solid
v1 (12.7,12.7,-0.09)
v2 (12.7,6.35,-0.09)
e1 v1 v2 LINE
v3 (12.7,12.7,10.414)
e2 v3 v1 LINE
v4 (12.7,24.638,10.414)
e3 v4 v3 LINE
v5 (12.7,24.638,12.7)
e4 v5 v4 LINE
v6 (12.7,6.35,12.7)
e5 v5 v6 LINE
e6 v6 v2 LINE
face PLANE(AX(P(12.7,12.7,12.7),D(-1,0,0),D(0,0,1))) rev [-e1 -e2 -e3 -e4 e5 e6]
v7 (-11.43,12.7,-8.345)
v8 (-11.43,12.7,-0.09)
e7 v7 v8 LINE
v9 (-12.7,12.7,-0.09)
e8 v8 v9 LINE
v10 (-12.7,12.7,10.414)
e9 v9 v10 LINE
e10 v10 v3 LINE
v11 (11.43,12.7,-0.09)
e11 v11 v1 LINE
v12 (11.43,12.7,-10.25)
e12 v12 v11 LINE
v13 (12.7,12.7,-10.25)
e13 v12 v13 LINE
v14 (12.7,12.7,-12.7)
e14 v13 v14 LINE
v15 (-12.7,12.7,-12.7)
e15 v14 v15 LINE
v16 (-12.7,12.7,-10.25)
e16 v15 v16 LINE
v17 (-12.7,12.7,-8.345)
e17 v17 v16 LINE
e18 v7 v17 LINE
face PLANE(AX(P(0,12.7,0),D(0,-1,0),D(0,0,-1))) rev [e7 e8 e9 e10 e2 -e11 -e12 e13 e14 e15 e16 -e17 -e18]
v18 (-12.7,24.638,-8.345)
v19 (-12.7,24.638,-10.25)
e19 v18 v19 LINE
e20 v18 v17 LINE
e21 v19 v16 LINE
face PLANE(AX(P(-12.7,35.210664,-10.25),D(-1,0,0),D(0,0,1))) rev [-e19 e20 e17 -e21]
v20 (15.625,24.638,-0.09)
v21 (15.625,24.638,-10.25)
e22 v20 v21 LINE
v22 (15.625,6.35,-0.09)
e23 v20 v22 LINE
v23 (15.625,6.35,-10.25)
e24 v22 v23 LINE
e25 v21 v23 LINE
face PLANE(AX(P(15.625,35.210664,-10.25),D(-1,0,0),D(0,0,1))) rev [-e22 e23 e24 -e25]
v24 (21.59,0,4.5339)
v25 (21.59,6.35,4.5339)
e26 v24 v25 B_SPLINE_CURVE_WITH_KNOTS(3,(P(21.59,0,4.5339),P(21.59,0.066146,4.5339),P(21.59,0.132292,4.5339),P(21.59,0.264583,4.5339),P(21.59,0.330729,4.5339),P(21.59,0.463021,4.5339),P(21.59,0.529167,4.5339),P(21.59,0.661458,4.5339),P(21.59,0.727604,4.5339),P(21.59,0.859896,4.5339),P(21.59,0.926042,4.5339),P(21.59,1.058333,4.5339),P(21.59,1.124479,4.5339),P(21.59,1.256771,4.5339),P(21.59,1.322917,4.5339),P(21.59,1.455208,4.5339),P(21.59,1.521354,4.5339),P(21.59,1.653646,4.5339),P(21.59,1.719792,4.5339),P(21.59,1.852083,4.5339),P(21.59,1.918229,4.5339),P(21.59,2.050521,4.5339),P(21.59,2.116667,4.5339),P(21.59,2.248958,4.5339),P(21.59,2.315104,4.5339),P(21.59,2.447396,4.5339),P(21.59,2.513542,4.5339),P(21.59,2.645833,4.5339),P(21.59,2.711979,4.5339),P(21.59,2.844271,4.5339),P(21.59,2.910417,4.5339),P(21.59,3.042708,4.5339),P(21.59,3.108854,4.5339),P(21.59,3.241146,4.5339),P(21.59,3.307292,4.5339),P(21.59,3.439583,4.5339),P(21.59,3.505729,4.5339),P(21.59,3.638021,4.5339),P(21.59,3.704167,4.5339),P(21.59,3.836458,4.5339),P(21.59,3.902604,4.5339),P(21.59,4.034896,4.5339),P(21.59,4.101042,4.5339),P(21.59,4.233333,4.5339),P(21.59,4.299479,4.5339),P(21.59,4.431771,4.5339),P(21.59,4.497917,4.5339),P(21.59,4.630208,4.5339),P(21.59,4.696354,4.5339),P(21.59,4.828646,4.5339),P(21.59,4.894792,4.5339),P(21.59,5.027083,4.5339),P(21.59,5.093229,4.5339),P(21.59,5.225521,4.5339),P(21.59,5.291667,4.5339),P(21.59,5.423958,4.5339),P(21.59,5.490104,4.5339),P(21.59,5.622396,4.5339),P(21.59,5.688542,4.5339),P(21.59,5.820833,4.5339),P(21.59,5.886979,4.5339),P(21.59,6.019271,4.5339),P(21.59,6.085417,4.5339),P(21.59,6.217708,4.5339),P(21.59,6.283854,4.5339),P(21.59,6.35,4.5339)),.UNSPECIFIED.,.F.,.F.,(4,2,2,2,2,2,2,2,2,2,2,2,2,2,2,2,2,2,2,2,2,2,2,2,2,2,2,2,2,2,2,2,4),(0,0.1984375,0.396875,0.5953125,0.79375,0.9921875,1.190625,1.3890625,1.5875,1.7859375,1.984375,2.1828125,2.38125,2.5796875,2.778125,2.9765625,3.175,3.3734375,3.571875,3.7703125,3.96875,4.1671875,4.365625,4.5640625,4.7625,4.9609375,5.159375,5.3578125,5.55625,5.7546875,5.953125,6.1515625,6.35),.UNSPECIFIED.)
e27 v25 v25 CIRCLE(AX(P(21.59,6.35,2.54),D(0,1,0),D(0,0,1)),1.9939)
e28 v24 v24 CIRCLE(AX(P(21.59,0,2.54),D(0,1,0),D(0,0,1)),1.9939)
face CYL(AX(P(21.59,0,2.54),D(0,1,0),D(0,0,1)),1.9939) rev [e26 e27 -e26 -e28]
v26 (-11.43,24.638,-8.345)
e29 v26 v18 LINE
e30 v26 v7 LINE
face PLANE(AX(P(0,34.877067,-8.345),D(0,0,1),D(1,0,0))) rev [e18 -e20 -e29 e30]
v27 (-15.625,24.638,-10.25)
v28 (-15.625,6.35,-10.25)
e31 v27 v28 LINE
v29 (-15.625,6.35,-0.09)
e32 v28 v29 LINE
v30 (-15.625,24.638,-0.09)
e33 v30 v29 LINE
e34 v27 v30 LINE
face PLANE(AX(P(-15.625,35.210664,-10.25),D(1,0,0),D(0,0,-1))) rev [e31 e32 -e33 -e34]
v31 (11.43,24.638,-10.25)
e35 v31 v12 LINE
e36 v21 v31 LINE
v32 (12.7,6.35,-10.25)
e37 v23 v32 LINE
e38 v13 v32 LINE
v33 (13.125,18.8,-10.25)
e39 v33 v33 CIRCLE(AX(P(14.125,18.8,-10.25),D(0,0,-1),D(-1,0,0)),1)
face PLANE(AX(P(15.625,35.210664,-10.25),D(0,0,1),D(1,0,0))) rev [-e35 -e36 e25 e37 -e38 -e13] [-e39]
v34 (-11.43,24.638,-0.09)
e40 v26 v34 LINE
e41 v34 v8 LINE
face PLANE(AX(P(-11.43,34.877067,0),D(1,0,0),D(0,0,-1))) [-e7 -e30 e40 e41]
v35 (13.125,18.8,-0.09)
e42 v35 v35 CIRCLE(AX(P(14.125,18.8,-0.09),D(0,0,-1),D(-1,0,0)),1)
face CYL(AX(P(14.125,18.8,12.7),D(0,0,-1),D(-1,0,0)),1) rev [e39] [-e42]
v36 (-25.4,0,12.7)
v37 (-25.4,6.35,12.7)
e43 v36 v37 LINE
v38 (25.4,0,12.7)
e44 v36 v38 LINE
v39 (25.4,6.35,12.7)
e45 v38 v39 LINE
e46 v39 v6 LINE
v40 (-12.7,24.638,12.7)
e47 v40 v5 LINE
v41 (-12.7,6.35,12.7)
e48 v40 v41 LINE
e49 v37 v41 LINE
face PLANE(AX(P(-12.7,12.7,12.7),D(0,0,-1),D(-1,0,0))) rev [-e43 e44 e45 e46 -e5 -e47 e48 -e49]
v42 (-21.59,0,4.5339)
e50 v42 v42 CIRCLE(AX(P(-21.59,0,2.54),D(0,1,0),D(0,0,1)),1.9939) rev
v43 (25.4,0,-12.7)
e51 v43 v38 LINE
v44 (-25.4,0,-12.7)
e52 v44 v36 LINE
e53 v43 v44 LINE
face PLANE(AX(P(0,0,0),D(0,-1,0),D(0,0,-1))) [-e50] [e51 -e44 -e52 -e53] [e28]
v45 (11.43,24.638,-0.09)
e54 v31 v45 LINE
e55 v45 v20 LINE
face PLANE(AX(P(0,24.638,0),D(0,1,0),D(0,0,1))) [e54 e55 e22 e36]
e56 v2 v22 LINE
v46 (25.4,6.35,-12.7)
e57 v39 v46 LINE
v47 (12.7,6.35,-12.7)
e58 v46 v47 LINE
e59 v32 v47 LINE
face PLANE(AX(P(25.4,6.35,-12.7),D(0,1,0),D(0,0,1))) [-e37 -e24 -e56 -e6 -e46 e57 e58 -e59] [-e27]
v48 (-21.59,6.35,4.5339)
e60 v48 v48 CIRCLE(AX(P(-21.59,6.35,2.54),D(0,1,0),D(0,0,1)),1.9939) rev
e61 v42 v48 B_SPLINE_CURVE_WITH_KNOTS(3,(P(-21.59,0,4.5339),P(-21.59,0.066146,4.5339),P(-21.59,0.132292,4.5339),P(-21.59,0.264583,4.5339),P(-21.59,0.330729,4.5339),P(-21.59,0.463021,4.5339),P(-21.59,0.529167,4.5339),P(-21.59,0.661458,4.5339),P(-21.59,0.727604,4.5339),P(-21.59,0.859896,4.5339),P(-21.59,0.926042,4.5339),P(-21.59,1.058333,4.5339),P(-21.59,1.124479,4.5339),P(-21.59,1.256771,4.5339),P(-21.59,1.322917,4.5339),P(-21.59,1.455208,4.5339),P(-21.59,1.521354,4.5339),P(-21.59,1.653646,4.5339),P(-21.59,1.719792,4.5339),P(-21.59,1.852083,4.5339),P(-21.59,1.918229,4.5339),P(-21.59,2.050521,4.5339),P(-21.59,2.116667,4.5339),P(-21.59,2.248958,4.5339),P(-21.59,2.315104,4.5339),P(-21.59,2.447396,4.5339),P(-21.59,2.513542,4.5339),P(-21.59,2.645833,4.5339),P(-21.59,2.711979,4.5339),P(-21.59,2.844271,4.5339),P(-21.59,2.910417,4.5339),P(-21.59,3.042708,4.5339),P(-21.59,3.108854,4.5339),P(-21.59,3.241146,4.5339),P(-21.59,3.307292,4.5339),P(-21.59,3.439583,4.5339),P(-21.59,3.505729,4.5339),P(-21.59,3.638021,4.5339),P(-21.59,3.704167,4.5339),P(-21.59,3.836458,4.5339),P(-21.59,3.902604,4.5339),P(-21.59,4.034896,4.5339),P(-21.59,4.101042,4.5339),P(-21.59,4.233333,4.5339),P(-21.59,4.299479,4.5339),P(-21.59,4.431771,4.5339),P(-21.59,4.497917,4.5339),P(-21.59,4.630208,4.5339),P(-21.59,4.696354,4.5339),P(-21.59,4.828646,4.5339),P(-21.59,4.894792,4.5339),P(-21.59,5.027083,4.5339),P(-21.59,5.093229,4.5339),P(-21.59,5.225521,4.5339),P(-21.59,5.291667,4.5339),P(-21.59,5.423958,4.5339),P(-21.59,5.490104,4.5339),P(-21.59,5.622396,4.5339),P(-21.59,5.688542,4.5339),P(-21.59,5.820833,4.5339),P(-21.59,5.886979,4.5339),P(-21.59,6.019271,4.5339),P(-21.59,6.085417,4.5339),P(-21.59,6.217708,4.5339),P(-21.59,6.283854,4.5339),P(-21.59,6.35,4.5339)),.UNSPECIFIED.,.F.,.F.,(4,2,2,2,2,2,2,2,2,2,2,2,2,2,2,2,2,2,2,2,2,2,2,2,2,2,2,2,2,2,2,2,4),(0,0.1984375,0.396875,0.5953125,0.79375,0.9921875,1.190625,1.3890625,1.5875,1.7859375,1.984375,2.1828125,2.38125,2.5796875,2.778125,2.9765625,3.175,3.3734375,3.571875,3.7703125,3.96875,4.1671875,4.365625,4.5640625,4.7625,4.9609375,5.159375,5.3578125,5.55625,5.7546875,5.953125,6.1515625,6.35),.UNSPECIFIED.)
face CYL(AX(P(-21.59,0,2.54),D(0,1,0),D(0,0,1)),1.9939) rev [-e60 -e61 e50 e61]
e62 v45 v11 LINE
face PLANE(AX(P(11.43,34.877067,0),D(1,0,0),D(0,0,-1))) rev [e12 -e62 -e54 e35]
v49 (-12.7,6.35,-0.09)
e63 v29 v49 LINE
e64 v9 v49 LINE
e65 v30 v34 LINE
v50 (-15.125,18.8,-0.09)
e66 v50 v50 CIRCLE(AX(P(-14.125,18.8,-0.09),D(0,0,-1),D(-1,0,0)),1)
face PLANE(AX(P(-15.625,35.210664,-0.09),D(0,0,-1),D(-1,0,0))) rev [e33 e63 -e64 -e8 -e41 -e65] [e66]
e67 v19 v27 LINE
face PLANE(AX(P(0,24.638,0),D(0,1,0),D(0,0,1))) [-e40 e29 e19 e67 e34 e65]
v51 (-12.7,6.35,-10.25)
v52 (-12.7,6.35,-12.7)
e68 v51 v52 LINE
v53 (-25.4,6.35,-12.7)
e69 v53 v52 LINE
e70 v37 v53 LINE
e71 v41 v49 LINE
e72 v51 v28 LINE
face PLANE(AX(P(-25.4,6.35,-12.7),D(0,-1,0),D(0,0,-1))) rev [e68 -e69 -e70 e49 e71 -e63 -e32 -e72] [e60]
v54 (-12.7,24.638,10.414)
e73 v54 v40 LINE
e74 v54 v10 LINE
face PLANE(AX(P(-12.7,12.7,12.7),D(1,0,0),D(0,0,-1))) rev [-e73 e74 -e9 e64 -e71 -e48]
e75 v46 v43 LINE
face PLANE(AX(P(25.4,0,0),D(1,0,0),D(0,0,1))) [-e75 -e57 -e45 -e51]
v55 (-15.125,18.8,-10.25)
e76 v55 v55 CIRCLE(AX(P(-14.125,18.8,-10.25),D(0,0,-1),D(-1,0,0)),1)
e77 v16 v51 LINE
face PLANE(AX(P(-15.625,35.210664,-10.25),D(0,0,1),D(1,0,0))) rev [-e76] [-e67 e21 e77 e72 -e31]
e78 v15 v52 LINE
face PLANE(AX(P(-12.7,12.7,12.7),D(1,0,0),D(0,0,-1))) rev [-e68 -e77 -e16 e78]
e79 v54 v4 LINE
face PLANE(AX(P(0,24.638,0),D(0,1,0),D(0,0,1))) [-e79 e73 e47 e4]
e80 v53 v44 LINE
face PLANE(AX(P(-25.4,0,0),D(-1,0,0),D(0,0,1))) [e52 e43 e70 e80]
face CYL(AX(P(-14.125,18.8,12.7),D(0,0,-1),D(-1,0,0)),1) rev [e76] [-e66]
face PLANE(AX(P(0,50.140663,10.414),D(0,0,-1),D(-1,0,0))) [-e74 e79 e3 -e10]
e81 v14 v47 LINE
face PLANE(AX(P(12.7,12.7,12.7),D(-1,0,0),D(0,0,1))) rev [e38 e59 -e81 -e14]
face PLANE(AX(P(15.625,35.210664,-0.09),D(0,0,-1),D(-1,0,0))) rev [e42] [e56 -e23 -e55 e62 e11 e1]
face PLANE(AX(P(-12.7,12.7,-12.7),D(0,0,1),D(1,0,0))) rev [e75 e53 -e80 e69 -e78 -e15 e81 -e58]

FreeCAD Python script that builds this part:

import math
import FreeCAD as App
import Part
import Sketcher
from FreeCAD import Vector
Q = App.Units.Quantity


def add_polygon(sketch, points):
    """Adds a closed chain of lines whose ends are joined by coincident constraints."""
    first, n = sketch.GeometryCount, len(points)
    for a, b in zip(points, points[1:] + points[:1]):
        sketch.addGeometry(Part.LineSegment(App.Vector(*a, 0), App.Vector(*b, 0)), False)
    for i in range(n):
        sketch.addConstraint(Sketcher.Constraint("Coincident", first + i, 2, first + (i + 1) % n, 1))

doc = App.newDocument("Part")
body = doc.addObject("PartDesign::Body", "Body")

# Sketch on XZ plane
sketch1 = body.newObject("Sketcher::SketchObject", "Sketch")
sketch1.AttachmentSupport = (doc.getObject("XZ_Plane"), [""])
sketch1.MapMode = "FlatFace"
add_polygon(sketch1, [(-13, -13), (-13, 13), (13, 13), (13, -13)])  # lines 0-3
sketch1.addConstraint([
    Sketcher.Constraint("Vertical", 0),
    Sketcher.Constraint("Horizontal", 1),
    Sketcher.Constraint("Vertical", 2),
    Sketcher.Constraint("Horizontal", 3),
    Sketcher.Constraint("Symmetric", 0, 2, 2, 2, -1, 1),
    Sketcher.Constraint("Equal", 3, 0),
    Sketcher.Constraint("DistanceX", 1, 1, 1, 2, Q("1 in")),
])
pad1 = body.newObject("PartDesign::Pad", "Pad")
pad1.Profile = sketch1
pad1.Length = Q("0.5 in")
pad1.Reversed = True

# Sketch on YZ plane
sketch2 = body.newObject("Sketcher::SketchObject", "Sketch001")
sketch2.AttachmentSupport = (doc.getObject("YZ_Plane"), [""])
sketch2.MapMode = "FlatFace"
sketch2.AttachmentOffset = App.Placement(Vector(0, 0, -0.5 * 25.4), App.Rotation())
add_polygon(sketch2, [(6, -13), (0, -13), (0, 13), (6, 13)])  # lines 0-3
sketch2.addConstraint([
    Sketcher.Constraint("Horizontal", 0),
    Sketcher.Constraint("Vertical", 1),
    Sketcher.Constraint("Horizontal", 2),
    Sketcher.Constraint("Vertical", 3),
    Sketcher.Constraint("Symmetric", 0, 2, 1, 2, -1, 1),
    Sketcher.Constraint("DistanceY", 1, 1, 1, 2, Q("1 in")),
    Sketcher.Constraint("DistanceX", 0, 2, 0, 1, Q("0.25 in")),
])
pad2 = body.newObject("PartDesign::Pad", "Pad001")
pad2.Profile = sketch2
pad2.Length = Q("0.5 in")
pad2.Reversed = True
doc.recompute()

mirrored = body.newObject("PartDesign::Mirrored", "Mirrored")
mirrored.Originals = [pad2]
mirrored.MirrorPlane = (doc.getObject("YZ_Plane"), [""])
body.Tip = mirrored

# Sketch on XZ plane
sketch3 = body.newObject("Sketcher::SketchObject", "Sketch002")
sketch3.AttachmentSupport = (doc.getObject("XZ_Plane"), [""])
sketch3.MapMode = "FlatFace"
sketch3.AttachmentOffset = App.Placement(Vector(0, 0, -0.25 * 25.4), App.Rotation())
add_polygon(sketch3, [(-15.6, -10.2), (-15.6, -0.1), (-12.7, -0.1), (-12.7, -10.2)])  # lines 0-3
add_polygon(sketch3, [(12.7, -10.2), (12.7, -0.1), (15.6, -0.1), (15.6, -10.2)])  # lines 4-7
sketch3.addConstraint([
    Sketcher.Constraint("Vertical", 0),
    Sketcher.Constraint("Horizontal", 1),
    Sketcher.Constraint("Vertical", 2),
    Sketcher.Constraint("Horizontal", 3),
    Sketcher.Constraint("Vertical", 4),
    Sketcher.Constraint("Horizontal", 5),
    Sketcher.Constraint("Vertical", 6),
    Sketcher.Constraint("Horizontal", 7),
    Sketcher.Constraint("Symmetric", 1, 2, 4, 2, -2),
    Sketcher.Constraint("Symmetric", 3, 2, 6, 2, -2),
    Sketcher.Constraint("DistanceY", 0, 1, 0, 2, Q("0.4 in")),
    Sketcher.Constraint("DistanceX", 1, 2, 4, 2, Q("1 in")),
    Sketcher.Constraint("DistanceX", 1, 1, 1, 2, 2.925),
    Sketcher.Constraint("DistanceY", 0, 2, -1, 1, 0.09),
])
pad3 = body.newObject("PartDesign::Pad", "Pad002")
pad3.Profile = sketch3
pad3.Length = Q("0.72 in")
pad3.Reversed = True

# Sketch on XZ plane
sketch4 = body.newObject("Sketcher::SketchObject", "Sketch003")
sketch4.AttachmentSupport = (doc.getObject("XZ_Plane"), [""])
sketch4.MapMode = "FlatFace"
sketch4.AttachmentOffset = App.Placement(Vector(0, 0, -0.5 * 25.4), App.Rotation())
add_polygon(sketch4, [(-12.7, -8.3), (-12.7, -0.1), (-11.4, -0.1), (-11.4, -8.3)])  # lines 0-3
add_polygon(sketch4, [(11.4, -10.2), (11.4, -0.1), (12.7, -0.1), (12.7, -10.2)])  # lines 4-7
sketch4.addConstraint([
    Sketcher.Constraint("Vertical", 0),
    Sketcher.Constraint("Horizontal", 1),
    Sketcher.Constraint("Vertical", 2),
    Sketcher.Constraint("Horizontal", 3),
    Sketcher.Constraint("Vertical", 4),
    Sketcher.Constraint("Horizontal", 5),
    Sketcher.Constraint("Vertical", 6),
    Sketcher.Constraint("Horizontal", 7),
    Sketcher.Constraint("Symmetric", 1, 2, 4, 2, -2),
    Sketcher.Constraint("Equal", 3, 5),
    Sketcher.Constraint("DistanceY", 4, 1, 4, 2, Q("0.4 in")),
    Sketcher.Constraint("DistanceX", 0, 2, 5, 2, Q("1 in")),
    Sketcher.Constraint("DistanceX", 1, 1, 1, 2, Q("0.05 in")),
    Sketcher.Constraint("DistanceY", 0, 1, 0, 2, Q("0.325 in")),
    Sketcher.Constraint("DistanceY", 0, 2, -1, 1, 0.09),
])
pad4 = body.newObject("PartDesign::Pad", "Pad003")
pad4.Profile = sketch4
pad4.Length = Q("0.47 in")
pad4.Reversed = True

# Sketch on XZ plane
sketch5 = body.newObject("Sketcher::SketchObject", "Sketch004")
sketch5.AttachmentSupport = (doc.getObject("XZ_Plane"), [""])
sketch5.MapMode = "FlatFace"
sketch5.AttachmentOffset = App.Placement(Vector(0, 0, -0.5 * 25.4), App.Rotation())
add_polygon(sketch5, [(-12.7, 10.4), (-12.7, 12.7), (12.7, 12.7), (12.7, 10.4)])  # lines 0-3
sketch5.addConstraint([
    Sketcher.Constraint("Vertical", 0),
    Sketcher.Constraint("Horizontal", 1),
    Sketcher.Constraint("Vertical", 2),
    Sketcher.Constraint("Horizontal", 3),
    Sketcher.Constraint("DistanceX", 1, 1, 1, 2, Q("1 in")),
    Sketcher.Constraint("DistanceY", 0, 1, 0, 2, Q("0.09 in")),
    Sketcher.Constraint("DistanceX", 0, 2, -1, 1, Q("0.5 in")),
    Sketcher.Constraint("DistanceY", -1, 1, 0, 2, Q("0.5 in")),
])
pad5 = body.newObject("PartDesign::Pad", "Pad004")
pad5.Profile = sketch5
pad5.Length = Q("0.47 in")
pad5.Reversed = True

# Sketch on XZ plane
sketch6 = body.newObject("Sketcher::SketchObject", "Sketch005")
sketch6.AttachmentSupport = (doc.getObject("XZ_Plane"), [""])
sketch6.MapMode = "FlatFace"
sketch6.AttachmentOffset = App.Placement(Vector(0, 0, -0.25 * 25.4), App.Rotation())
sketch6.addGeometry([
    Part.Circle(Vector(21.6, 2.5, 0), Vector(0, 0, 1), 2),
    Part.Circle(Vector(-21.6, 2.5, 0), Vector(0, 0, 1), 2),
], False)
sketch6.addConstraint([
    Sketcher.Constraint("Equal", 0, 1),
    Sketcher.Constraint("Symmetric", 0, 3, 1, 3, -2),
    Sketcher.Constraint("Diameter", 0, Q("0.157 in")),
    Sketcher.Constraint("DistanceY", -1, 1, 0, 3, Q("0.1 in")),
    Sketcher.Constraint("DistanceX", 1, 3, 0, 3, Q("1.7 in")),
])
pocket1 = body.newObject("PartDesign::Pocket", "Pocket")
pocket1.Profile = sketch6
pocket1.Type = "ThroughAll"
pocket1.Reversed = True

# Sketch on XY plane
sketch7 = body.newObject("Sketcher::SketchObject", "Sketch006")
sketch7.AttachmentSupport = (doc.getObject("XY_Plane"), [""])
sketch7.MapMode = "FlatFace"
sketch7.AttachmentOffset = App.Placement(Vector(0, 0, -10.25), App.Rotation())
sketch7.addGeometry([
    Part.ArcOfCircle(Part.Circle(Vector(-14.1, 18.8, 0), Vector(0, 0, 1), 1), math.radians(150), math.radians(180)),  # 0
    Part.ArcOfCircle(Part.Circle(Vector(-14.1, 18.8, 0), Vector(0, 0, 1), 1), math.radians(-150), math.radians(150)),  # 1
    Part.ArcOfCircle(Part.Circle(Vector(-14.1, 18.8, 0), Vector(0, 0, 1), 1), math.radians(-180), math.radians(-150)),  # 2
    Part.ArcOfCircle(Part.Circle(Vector(14.1, 18.8, 0), Vector(0, 0, 1), 1), math.radians(-30), math.radians(30)),  # 3
    Part.ArcOfCircle(Part.Circle(Vector(14.1, 18.8, 0), Vector(0, 0, 1), 1), math.radians(180), math.radians(330)),  # 4
    Part.ArcOfCircle(Part.Circle(Vector(14.1, 18.8, 0), Vector(0, 0, 1), 1), math.radians(30), math.radians(180)),  # 5
], False)
sketch7.addConstraint([
    Sketcher.Constraint("Tangent", 0, 1, 1, 2),
    Sketcher.Constraint("Tangent", 1, 1, 2, 2),
    Sketcher.Constraint("Tangent", 2, 1, 0, 2),
    Sketcher.Constraint("Tangent", 3, 1, 4, 2),
    Sketcher.Constraint("Tangent", 4, 1, 5, 2),
    Sketcher.Constraint("Tangent", 5, 1, 3, 2),
    Sketcher.Constraint("Equal", 2, 3),
    Sketcher.Constraint("Symmetric", 0, 3, 3, 3, -2),
    Sketcher.Constraint("Horizontal", 5, 3, 2, 1),
    Sketcher.Constraint("Horizontal", 1, 1, 3, 1),
    Sketcher.Constraint("Horizontal", 2, 1, 4, 1),
    Sketcher.Constraint("Horizontal", 0, 1, 5, 1),
    Sketcher.Constraint("Vertical", 0, 1, 1, 1),
    Sketcher.Constraint("Radius", 0, 1.0),
    Sketcher.Constraint("DistanceX", 0, 3, -1, 1, 14.125),
    Sketcher.Constraint("DistanceY", -1, 1, 0, 3, 18.8),
    Sketcher.Constraint("DistanceY", -1, 1, 0, 1, 19.3),
])
pocket2 = body.newObject("PartDesign::Pocket", "Pocket001")
pocket2.Profile = sketch7
pocket2.Type = "ThroughAll"
pocket2.Reversed = True

doc.recompute()
